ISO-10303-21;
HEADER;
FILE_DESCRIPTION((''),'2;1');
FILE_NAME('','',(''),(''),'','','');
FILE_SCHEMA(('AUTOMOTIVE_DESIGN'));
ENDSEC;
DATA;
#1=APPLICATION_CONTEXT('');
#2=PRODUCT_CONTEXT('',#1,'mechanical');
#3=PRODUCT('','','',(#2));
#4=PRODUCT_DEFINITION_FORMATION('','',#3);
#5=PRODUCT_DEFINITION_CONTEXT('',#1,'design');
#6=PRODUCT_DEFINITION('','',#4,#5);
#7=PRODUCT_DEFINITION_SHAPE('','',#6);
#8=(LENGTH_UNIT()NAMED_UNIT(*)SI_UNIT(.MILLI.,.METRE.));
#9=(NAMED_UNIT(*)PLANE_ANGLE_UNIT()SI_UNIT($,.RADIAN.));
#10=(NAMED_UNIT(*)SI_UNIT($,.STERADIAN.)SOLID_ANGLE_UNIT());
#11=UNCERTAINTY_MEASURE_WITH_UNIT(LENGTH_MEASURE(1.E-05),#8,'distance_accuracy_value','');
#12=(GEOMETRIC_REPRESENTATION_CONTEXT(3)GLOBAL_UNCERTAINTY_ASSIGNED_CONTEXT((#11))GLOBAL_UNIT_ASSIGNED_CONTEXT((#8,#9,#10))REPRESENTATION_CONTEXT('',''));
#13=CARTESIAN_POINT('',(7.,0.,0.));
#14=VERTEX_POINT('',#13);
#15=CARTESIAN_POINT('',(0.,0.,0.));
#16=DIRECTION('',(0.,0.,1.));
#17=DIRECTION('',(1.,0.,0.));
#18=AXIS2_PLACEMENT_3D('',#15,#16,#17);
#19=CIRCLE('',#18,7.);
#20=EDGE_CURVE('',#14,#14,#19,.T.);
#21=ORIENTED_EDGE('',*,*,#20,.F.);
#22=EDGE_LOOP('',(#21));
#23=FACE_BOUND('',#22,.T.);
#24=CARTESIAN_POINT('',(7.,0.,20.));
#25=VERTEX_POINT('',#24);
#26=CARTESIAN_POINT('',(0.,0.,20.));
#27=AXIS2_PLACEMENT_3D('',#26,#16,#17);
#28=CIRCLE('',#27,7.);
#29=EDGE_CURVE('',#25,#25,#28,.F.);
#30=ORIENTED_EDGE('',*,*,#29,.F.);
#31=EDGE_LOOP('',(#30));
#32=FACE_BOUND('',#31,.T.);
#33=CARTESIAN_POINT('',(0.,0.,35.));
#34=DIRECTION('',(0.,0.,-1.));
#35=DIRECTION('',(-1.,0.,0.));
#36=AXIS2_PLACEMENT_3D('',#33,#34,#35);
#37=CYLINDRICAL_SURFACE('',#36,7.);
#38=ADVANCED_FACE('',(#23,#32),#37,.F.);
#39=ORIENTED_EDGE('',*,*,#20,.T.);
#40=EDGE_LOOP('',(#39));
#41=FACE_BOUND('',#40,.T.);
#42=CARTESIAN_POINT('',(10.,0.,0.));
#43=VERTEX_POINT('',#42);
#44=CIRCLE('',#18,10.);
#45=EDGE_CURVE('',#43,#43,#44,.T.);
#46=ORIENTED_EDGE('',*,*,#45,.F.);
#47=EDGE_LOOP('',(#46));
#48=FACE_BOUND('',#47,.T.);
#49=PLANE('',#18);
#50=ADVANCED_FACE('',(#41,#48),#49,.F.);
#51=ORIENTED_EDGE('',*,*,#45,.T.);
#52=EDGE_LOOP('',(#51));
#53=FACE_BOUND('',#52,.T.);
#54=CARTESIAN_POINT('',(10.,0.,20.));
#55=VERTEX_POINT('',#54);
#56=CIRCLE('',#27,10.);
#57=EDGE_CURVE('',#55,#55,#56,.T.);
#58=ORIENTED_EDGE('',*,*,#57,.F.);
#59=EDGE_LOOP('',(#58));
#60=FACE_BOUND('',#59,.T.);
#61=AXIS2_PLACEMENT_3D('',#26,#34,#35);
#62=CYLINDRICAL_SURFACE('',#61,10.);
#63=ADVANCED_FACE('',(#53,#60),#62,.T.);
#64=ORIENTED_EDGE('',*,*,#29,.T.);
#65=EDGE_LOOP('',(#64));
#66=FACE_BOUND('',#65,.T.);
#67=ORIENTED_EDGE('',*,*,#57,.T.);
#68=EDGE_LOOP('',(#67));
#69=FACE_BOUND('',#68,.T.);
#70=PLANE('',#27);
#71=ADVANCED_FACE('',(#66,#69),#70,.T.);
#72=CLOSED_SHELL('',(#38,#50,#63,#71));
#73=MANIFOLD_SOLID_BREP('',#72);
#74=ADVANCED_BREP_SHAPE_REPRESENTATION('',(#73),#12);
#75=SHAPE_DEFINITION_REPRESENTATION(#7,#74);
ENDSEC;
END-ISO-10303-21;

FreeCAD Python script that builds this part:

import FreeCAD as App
import Part
import Sketcher
Q = App.Units.Quantity

doc = App.newDocument("Part")
body = doc.addObject("PartDesign::Body", "Body")

# Sketch on XY plane
sketch1 = body.newObject("Sketcher::SketchObject", "Sketch")
sketch1.AttachmentSupport = (doc.getObject("XY_Plane"), [""])
sketch1.MapMode = "FlatFace"
sketch1.addGeometry(Part.Circle(App.Vector(0, 0, 0), App.Vector(0, 0, 1), 10), False)
sketch1.addConstraint([
    Sketcher.Constraint("Coincident", 0, 3, -1, 1),
    Sketcher.Constraint("Diameter", 0, Q("20 mm")),
])
pad1 = body.newObject("PartDesign::Pad", "Pad")
pad1.Profile = sketch1
pad1.Length = 20

# Sketch on XY plane
sketch2 = body.newObject("Sketcher::SketchObject", "Sketch001")
sketch2.AttachmentSupport = (doc.getObject("XY_Plane"), [""])
sketch2.MapMode = "FlatFace"
sketch2.addGeometry(Part.Circle(App.Vector(0, 0, 0), App.Vector(0, 0, 1), 7), False)
sketch2.addConstraint([
    Sketcher.Constraint("Coincident", 0, 3, -1, 1),
    Sketcher.Constraint("Diameter", 0, Q("14 mm")),
])
pocket1 = body.newObject("PartDesign::Pocket", "Pocket")
pocket1.Profile = sketch2
pocket1.Length = 35
pocket1.Reversed = True

doc.recompute()
